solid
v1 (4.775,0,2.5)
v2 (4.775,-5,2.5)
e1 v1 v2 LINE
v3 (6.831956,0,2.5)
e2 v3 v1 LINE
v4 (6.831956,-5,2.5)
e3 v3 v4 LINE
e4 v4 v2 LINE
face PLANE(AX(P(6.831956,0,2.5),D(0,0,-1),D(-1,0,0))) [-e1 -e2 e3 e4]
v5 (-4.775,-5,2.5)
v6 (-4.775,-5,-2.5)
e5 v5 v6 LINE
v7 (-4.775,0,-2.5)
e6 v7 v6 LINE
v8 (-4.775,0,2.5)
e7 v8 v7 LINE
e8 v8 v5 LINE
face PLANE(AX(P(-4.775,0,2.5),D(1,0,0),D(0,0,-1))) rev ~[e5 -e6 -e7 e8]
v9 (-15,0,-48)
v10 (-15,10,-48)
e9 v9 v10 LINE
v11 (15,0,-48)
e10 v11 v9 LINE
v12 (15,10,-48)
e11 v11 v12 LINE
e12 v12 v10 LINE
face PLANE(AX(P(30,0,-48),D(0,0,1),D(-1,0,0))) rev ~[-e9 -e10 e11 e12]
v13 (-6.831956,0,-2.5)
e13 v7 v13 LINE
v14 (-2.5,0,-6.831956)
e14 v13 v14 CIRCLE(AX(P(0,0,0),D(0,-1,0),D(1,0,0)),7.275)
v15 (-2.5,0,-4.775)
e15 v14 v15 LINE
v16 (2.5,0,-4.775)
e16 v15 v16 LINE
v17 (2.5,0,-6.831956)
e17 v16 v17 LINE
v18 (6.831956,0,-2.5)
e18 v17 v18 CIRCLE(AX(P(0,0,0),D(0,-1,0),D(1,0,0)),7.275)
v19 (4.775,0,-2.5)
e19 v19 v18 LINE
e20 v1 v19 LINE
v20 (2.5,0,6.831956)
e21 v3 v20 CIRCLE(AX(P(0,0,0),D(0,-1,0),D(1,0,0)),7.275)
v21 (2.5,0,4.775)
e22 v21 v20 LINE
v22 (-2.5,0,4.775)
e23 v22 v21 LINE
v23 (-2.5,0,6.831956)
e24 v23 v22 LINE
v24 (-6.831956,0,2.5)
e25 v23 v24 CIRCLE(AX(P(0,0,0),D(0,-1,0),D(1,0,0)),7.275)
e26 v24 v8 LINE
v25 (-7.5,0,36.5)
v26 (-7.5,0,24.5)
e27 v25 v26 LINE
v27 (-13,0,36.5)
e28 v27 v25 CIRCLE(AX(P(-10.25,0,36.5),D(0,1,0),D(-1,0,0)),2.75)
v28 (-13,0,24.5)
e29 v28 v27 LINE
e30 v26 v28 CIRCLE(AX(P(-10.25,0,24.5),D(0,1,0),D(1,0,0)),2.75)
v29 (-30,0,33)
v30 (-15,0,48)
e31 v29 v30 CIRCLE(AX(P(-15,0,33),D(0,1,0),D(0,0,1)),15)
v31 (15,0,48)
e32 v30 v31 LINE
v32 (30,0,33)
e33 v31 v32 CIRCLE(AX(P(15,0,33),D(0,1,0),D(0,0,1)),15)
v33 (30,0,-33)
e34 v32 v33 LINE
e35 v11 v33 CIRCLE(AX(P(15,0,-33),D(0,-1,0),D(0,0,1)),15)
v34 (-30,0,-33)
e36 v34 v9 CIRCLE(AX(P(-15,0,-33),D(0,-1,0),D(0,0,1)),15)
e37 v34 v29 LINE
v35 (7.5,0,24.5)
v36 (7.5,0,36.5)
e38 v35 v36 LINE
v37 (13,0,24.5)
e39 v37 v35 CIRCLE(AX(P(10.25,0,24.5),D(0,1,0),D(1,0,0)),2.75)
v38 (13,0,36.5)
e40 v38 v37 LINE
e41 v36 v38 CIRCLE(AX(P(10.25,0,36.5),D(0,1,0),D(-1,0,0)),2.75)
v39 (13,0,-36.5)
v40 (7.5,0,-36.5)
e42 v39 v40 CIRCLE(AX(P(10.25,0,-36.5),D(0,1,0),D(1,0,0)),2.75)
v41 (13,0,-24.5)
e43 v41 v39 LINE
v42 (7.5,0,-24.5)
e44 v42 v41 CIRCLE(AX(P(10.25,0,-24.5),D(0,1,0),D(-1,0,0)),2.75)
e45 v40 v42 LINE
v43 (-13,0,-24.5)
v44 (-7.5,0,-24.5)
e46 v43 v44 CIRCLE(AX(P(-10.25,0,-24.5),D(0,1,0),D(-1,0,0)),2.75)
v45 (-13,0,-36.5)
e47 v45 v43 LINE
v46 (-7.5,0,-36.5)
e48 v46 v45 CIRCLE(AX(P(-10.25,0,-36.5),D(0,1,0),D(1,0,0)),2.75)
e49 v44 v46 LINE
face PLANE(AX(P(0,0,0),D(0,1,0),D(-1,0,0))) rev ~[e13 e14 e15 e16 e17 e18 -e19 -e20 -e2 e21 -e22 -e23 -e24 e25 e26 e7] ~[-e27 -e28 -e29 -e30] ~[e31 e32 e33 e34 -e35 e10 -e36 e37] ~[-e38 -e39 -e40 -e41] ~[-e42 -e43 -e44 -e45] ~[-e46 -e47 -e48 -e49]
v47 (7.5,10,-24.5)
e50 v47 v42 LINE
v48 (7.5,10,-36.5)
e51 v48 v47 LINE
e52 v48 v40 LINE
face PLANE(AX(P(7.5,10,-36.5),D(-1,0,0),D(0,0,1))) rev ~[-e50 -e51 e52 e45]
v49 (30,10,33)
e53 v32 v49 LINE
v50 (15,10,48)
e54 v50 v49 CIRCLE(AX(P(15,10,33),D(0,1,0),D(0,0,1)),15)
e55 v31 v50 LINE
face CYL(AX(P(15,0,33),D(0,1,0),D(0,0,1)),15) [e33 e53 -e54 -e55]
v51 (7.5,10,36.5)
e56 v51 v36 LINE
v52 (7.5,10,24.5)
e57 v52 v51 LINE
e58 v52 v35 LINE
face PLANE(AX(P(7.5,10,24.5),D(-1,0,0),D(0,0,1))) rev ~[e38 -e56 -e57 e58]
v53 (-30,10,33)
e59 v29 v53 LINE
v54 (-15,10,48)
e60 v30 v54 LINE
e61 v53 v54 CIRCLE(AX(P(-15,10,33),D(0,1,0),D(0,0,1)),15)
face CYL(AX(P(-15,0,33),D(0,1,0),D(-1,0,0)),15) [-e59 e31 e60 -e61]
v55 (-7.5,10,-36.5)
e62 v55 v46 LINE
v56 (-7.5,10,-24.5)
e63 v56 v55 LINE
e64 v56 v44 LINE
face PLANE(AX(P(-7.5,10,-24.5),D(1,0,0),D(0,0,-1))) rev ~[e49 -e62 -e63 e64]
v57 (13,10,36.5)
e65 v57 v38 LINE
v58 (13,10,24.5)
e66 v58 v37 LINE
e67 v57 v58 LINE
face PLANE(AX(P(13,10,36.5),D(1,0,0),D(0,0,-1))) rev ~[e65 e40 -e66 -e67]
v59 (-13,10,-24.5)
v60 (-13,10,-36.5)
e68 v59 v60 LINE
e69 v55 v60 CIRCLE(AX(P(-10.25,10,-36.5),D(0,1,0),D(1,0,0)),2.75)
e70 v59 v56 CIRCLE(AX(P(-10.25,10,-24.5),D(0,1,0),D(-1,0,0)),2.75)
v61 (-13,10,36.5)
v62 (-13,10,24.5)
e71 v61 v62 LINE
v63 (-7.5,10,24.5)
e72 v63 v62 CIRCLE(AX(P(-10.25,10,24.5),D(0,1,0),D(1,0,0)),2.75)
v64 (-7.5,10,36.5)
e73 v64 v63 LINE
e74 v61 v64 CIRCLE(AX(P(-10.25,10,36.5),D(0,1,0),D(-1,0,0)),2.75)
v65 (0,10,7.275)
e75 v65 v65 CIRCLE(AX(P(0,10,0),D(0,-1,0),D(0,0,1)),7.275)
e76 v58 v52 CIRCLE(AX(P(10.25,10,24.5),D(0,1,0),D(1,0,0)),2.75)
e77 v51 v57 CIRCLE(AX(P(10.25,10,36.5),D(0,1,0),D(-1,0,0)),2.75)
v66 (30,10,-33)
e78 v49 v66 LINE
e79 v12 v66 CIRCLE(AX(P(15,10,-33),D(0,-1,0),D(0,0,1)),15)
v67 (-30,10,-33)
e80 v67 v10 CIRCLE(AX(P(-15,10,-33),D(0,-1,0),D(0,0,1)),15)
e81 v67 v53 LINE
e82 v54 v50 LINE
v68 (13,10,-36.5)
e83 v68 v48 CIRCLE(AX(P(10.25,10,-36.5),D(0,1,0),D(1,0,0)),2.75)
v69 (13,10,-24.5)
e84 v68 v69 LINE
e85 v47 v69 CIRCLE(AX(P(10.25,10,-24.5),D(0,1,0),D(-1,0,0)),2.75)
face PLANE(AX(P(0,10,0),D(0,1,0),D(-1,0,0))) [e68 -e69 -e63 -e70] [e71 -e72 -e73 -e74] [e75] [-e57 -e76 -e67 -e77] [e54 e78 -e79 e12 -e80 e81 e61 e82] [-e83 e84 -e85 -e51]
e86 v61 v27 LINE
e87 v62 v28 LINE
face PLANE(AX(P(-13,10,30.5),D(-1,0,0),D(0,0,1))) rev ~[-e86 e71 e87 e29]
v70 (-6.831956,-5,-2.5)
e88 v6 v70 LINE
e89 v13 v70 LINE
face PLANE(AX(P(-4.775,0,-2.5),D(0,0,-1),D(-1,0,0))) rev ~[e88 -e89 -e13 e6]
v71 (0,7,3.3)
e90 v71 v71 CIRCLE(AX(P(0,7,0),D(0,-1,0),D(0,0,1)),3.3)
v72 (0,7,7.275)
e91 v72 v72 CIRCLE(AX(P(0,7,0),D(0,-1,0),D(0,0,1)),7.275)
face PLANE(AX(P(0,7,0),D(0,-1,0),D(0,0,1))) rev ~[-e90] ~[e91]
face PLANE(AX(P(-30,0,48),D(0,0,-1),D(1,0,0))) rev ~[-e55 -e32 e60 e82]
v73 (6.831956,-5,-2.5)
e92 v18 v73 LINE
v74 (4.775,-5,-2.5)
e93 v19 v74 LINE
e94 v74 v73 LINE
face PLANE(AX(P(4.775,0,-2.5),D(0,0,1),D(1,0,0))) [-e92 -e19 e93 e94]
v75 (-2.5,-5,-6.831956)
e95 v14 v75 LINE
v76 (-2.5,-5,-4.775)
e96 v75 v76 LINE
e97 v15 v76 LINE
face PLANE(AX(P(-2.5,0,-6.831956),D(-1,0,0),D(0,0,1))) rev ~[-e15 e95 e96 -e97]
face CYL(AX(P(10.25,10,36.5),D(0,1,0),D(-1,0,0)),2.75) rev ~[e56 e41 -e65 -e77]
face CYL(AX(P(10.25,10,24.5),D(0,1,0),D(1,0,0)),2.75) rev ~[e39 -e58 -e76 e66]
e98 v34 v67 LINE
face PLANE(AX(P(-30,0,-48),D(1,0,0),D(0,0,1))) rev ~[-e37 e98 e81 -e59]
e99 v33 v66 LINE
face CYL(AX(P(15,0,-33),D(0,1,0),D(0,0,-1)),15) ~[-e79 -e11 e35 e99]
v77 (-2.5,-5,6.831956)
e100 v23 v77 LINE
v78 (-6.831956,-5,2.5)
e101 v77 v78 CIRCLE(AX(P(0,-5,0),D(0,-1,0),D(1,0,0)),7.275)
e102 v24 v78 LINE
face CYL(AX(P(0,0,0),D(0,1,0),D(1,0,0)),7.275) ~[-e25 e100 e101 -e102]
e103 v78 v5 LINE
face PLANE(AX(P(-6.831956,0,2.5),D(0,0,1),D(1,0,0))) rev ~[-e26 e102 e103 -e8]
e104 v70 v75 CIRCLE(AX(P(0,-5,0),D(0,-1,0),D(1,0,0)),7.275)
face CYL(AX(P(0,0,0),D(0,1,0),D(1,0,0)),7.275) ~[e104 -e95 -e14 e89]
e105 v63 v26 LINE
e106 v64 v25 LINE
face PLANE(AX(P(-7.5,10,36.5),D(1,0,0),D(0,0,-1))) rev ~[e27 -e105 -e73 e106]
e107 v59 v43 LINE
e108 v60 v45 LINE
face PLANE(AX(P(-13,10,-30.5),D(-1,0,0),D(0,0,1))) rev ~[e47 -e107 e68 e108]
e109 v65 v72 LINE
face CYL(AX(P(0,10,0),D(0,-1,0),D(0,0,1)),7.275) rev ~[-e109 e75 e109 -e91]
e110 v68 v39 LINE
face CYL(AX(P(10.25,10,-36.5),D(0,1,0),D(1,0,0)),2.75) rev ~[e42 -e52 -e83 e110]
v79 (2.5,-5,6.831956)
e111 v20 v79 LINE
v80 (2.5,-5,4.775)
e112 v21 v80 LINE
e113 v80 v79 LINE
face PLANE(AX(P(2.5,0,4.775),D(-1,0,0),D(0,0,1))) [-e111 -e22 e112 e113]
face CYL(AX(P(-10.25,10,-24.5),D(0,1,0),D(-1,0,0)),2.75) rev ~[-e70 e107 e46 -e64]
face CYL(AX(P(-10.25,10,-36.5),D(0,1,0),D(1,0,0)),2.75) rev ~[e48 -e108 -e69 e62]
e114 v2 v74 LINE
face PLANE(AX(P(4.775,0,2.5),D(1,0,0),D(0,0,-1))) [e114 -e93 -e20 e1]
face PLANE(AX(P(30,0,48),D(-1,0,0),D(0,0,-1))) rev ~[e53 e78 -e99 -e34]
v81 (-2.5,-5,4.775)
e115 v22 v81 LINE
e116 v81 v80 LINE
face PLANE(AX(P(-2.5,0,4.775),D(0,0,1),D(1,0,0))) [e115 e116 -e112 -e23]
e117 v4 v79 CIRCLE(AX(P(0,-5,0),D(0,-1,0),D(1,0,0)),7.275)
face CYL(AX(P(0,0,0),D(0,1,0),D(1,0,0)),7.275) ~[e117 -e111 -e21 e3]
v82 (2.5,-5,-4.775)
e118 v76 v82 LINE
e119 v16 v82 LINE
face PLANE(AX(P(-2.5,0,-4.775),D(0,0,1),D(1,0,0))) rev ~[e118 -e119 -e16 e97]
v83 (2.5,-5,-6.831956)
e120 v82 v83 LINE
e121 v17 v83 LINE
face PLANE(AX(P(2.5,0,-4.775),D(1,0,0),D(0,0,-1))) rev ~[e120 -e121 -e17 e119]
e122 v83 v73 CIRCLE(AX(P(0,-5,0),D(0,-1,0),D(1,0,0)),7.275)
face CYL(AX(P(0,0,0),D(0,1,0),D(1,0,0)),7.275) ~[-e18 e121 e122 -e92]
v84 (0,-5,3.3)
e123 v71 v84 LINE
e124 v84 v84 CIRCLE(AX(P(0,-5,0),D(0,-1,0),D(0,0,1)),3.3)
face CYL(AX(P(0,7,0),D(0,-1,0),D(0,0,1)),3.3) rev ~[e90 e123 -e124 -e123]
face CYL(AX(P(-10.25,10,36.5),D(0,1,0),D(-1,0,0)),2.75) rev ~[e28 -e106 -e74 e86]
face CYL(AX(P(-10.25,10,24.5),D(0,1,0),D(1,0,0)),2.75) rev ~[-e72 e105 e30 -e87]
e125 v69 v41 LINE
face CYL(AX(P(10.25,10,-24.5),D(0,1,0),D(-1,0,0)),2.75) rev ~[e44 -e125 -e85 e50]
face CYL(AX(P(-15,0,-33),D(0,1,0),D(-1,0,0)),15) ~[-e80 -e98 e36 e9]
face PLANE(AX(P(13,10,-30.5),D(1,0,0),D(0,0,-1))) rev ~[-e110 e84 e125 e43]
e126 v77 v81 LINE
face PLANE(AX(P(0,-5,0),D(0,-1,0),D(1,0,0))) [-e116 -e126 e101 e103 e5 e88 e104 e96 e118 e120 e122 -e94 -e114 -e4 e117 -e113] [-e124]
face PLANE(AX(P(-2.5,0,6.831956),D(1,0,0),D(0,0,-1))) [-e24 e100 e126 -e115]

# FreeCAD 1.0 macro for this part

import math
import FreeCAD as App
import Part
import Sketcher
from FreeCAD import Vector


def edges_at(feature, points):
    """Names of the edges that pass closest to the given points."""
    edges = feature.Shape.Edges
    near = lambda p: min(range(len(edges)), key=lambda i: edges[i].distToShape(Part.Vertex(*p))[0])
    return sorted({f"Edge{near(p) + 1}" for p in points})

doc = App.newDocument("Part")
params = doc.addObject("Spreadsheet::Sheet", "Params")
for row, (alias, value) in enumerate([
    ("sketch1_width", "60 mm"),
    ("sketch1_height", "96 mm"),
    ("pad1_length", "10 mm"),
    ("sketch2_radius", "2.75 mm"),
    ("sketch2_height", "12 mm"),
    ("sketch3_width", "5 mm"),
    ("pad2_length", "5 mm"),
    ("sketch4_diameter", "6.6 mm"),
    ("hole_diameter", "6.6 mm"),
    ("hole_cbore_diameter", "14.55 mm"),
    ("hole_cbore_depth", "3 mm"),
    ("fillet_radius", "15 mm"),
], start=1):
    params.set(f"A{row}", alias)
    params.set(f"B{row}", "=" + value)
    params.setAlias(f"B{row}", alias)

body = doc.addObject("PartDesign::Body", "Body")

# Sketch on XZ plane
sketch1 = doc.addObject("Sketcher::SketchObject", "Sketch")
body.addObject(sketch1)
sketch1.AttachmentSupport = (doc.XZ_Plane, [""])
sketch1.MapMode = "FlatFace"
sketch1.addGeometry([
    Part.LineSegment(Vector(-30, -48, 0), Vector(-30, 48, 0)),
    Part.LineSegment(Vector(-30, 48, 0), Vector(30, 48, 0)),
    Part.LineSegment(Vector(30, 48, 0), Vector(30, -48, 0)),
    Part.LineSegment(Vector(30, -48, 0), Vector(-30, -48, 0)),
], False)
sketch1.addConstraint([
    Sketcher.Constraint("Coincident", 0, 2, 1, 1),
    Sketcher.Constraint("Coincident", 1, 2, 2, 1),
    Sketcher.Constraint("Coincident", 2, 2, 3, 1),
    Sketcher.Constraint("Coincident", 3, 2, 0, 1),
    Sketcher.Constraint("Vertical", 0),
    Sketcher.Constraint("Horizontal", 1),
    Sketcher.Constraint("Vertical", 2),
    Sketcher.Constraint("Horizontal", 3),
    Sketcher.Constraint("Symmetric", 0, 2, 2, 2, -1, 1),
    Sketcher.Constraint("DistanceX", 1, 1, 1, 2, 60.0),
    Sketcher.Constraint("DistanceY", 0, 1, 0, 2, 96.0),
])
sketch1.setExpression("Constraints[9]", "Params.sketch1_width")
sketch1.setExpression("Constraints[10]", "Params.sketch1_height")
pad1 = doc.addObject("PartDesign::Pad", "Pad")
body.addObject(pad1)
pad1.Profile = sketch1
pad1.setExpression("Length", "Params.pad1_length")
pad1.Reversed = True

# Sketch on XZ plane
sketch2 = doc.addObject("Sketcher::SketchObject", "Sketch001")
body.addObject(sketch2)
sketch2.AttachmentSupport = (doc.XZ_Plane, [""])
sketch2.MapMode = "FlatFace"
sketch2.AttachmentOffset = App.Placement(Vector(0, 0, -10), App.Rotation())
sketch2.addGeometry([
    Part.ArcOfCircle(Part.Circle(Vector(10.25, 36.5, 0), Vector(0, 0, 1), 2.75), math.radians(0), math.radians(180)),  # 0
    Part.LineSegment(Vector(13, 36.5, 0), Vector(13, 24.5, 0)),  # 1
    Part.ArcOfCircle(Part.Circle(Vector(10.25, 24.5, 0), Vector(0, 0, 1), 2.75), math.radians(180), math.radians(360)),  # 2
    Part.LineSegment(Vector(7.5, 24.5, 0), Vector(7.5, 36.5, 0)),  # 3
    Part.LineSegment(Vector(-13, 24.5, 0), Vector(-13, 36.5, 0)),  # 4
    Part.ArcOfCircle(Part.Circle(Vector(-10.25, 36.5, 0), Vector(0, 0, 1), 2.75), math.radians(0), math.radians(180)),  # 5
    Part.LineSegment(Vector(-7.5, 36.5, 0), Vector(-7.5, 24.5, 0)),  # 6
    Part.ArcOfCircle(Part.Circle(Vector(-10.25, 24.5, 0), Vector(0, 0, 1), 2.75), math.radians(180), math.radians(360)),  # 7
    Part.LineSegment(Vector(7.5, -36.5, 0), Vector(7.5, -24.5, 0)),  # 8
    Part.ArcOfCircle(Part.Circle(Vector(10.25, -24.5, 0), Vector(0, 0, 1), 2.75), math.radians(0), math.radians(180)),  # 9
    Part.LineSegment(Vector(13, -24.5, 0), Vector(13, -36.5, 0)),  # 10
    Part.ArcOfCircle(Part.Circle(Vector(10.25, -36.5, 0), Vector(0, 0, 1), 2.75), math.radians(180), math.radians(360)),  # 11
    Part.LineSegment(Vector(-13, -36.5, 0), Vector(-13, -24.5, 0)),  # 12
    Part.ArcOfCircle(Part.Circle(Vector(-10.25, -24.5, 0), Vector(0, 0, 1), 2.75), math.radians(0), math.radians(180)),  # 13
    Part.LineSegment(Vector(-7.5, -24.5, 0), Vector(-7.5, -36.5, 0)),  # 14
    Part.ArcOfCircle(Part.Circle(Vector(-10.25, -36.5, 0), Vector(0, 0, 1), 2.75), math.radians(180), math.radians(360)),  # 15
], False)
sketch2.addConstraint([
    Sketcher.Constraint("Tangent", 0, 1, 1, 1),
    Sketcher.Constraint("Tangent", 1, 2, 2, 2),
    Sketcher.Constraint("Tangent", 2, 1, 3, 1),
    Sketcher.Constraint("Tangent", 3, 2, 0, 2),
    Sketcher.Constraint("Tangent", 4, 2, 5, 2),
    Sketcher.Constraint("Tangent", 5, 1, 6, 1),
    Sketcher.Constraint("Tangent", 6, 2, 7, 2),
    Sketcher.Constraint("Tangent", 7, 1, 4, 1),
    Sketcher.Constraint("Tangent", 8, 2, 9, 2),
    Sketcher.Constraint("Tangent", 9, 1, 10, 1),
    Sketcher.Constraint("Tangent", 10, 2, 11, 2),
    Sketcher.Constraint("Tangent", 11, 1, 8, 1),
    Sketcher.Constraint("Tangent", 12, 2, 13, 2),
    Sketcher.Constraint("Tangent", 13, 1, 14, 1),
    Sketcher.Constraint("Tangent", 14, 2, 15, 2),
    Sketcher.Constraint("Tangent", 15, 1, 12, 1),
    Sketcher.Constraint("Vertical", 1),
    Sketcher.Constraint("Vertical", 3),
    Sketcher.Constraint("Vertical", 4),
    Sketcher.Constraint("Vertical", 6),
    Sketcher.Constraint("Vertical", 8),
    Sketcher.Constraint("Vertical", 10),
    Sketcher.Constraint("Vertical", 12),
    Sketcher.Constraint("Vertical", 14),
    Sketcher.Constraint("Equal", 2, 5),
    Sketcher.Constraint("Equal", 7, 9),
    Sketcher.Constraint("Equal", 11, 13),
    Sketcher.Constraint("Symmetric", 7, 3, 9, 3, -1, 1),
    Sketcher.Constraint("Symmetric", 2, 3, 13, 3, -1, 1),
    Sketcher.Constraint("Symmetric", 0, 3, 5, 3, -2),
    Sketcher.Constraint("Horizontal", 2, 3, 7, 3),
    Sketcher.Constraint("Horizontal", 11, 3, 15, 3),
    Sketcher.Constraint("Equal", 6, 8),
    Sketcher.Constraint("Radius", 0, 2.75),
    Sketcher.Constraint("DistanceY", 9, 3, 0, 3, 61.0),
    Sketcher.Constraint("DistanceY", 1, 2, 1, 1, 12.0),
    Sketcher.Constraint("DistanceX", -1, 1, 0, 1, 13.0),
])
sketch2.setExpression("Constraints[33]", "Params.sketch2_radius")
sketch2.setExpression("Constraints[35]", "Params.sketch2_height")
pocket1 = doc.addObject("PartDesign::Pocket", "Pocket")
body.addObject(pocket1)
pocket1.Profile = sketch2
pocket1.Type = "ThroughAll"
pocket1.Reversed = True

# Sketch on XZ plane
sketch3 = doc.addObject("Sketcher::SketchObject", "Sketch002")
body.addObject(sketch3)
sketch3.AttachmentSupport = (doc.XZ_Plane, [""])
sketch3.MapMode = "FlatFace"
sketch3.addGeometry([
    Part.LineSegment(Vector(4.775, 2.5, 0), Vector(6.831956, 2.5, 0)),  # 0
    Part.ArcOfCircle(Part.Circle(Vector(0, 0, 0), Vector(0, 0, 1), 7.275), math.radians(20.098958), math.radians(69.901042)),  # 1
    Part.LineSegment(Vector(2.5, 6.831956, 0), Vector(2.5, 4.775, 0)),  # 2
    Part.LineSegment(Vector(2.5, 4.775, 0), Vector(-2.5, 4.775, 0)),  # 3
    Part.LineSegment(Vector(-2.5, 4.775, 0), Vector(-2.5, 6.831956, 0)),  # 4
    Part.ArcOfCircle(Part.Circle(Vector(0, 0, 0), Vector(0, 0, 1), 7.275), math.radians(110.098958), math.radians(159.901042)),  # 5
    Part.LineSegment(Vector(-6.831956, 2.5, 0), Vector(-4.775, 2.5, 0)),  # 6
    Part.LineSegment(Vector(-4.775, 2.5, 0), Vector(-4.775, -2.5, 0)),  # 7
    Part.LineSegment(Vector(-4.775, -2.5, 0), Vector(-6.831956, -2.5, 0)),  # 8
    Part.ArcOfCircle(Part.Circle(Vector(0, 0, 0), Vector(0, 0, 1), 7.275), math.radians(-159.901042), math.radians(-110.098958)),  # 9
    Part.LineSegment(Vector(-2.5, -6.831956, 0), Vector(-2.5, -4.775, 0)),  # 10
    Part.LineSegment(Vector(-2.5, -4.775, 0), Vector(2.5, -4.775, 0)),  # 11
    Part.LineSegment(Vector(2.5, -4.775, 0), Vector(2.5, -6.831956, 0)),  # 12
    Part.ArcOfCircle(Part.Circle(Vector(0, 0, 0), Vector(0, 0, 1), 7.275), math.radians(-69.901042), math.radians(-20.098958)),  # 13
    Part.LineSegment(Vector(6.831956, -2.5, 0), Vector(4.775, -2.5, 0)),  # 14
    Part.LineSegment(Vector(4.775, -2.5, 0), Vector(4.775, 2.5, 0)),  # 15
], False)
sketch3.addConstraint([
    Sketcher.Constraint("Coincident", 0, 2, 1, 1),
    Sketcher.Constraint("Coincident", 1, 2, 2, 1),
    Sketcher.Constraint("Coincident", 2, 2, 3, 1),
    Sketcher.Constraint("Coincident", 3, 2, 4, 1),
    Sketcher.Constraint("Coincident", 4, 2, 5, 1),
    Sketcher.Constraint("Coincident", 5, 2, 6, 1),
    Sketcher.Constraint("Coincident", 6, 2, 7, 1),
    Sketcher.Constraint("Coincident", 7, 2, 8, 1),
    Sketcher.Constraint("Coincident", 8, 2, 9, 1),
    Sketcher.Constraint("Coincident", 9, 2, 10, 1),
    Sketcher.Constraint("Coincident", 10, 2, 11, 1),
    Sketcher.Constraint("Coincident", 11, 2, 12, 1),
    Sketcher.Constraint("Coincident", 12, 2, 13, 1),
    Sketcher.Constraint("Coincident", 13, 2, 14, 1),
    Sketcher.Constraint("Coincident", 14, 2, 15, 1),
    Sketcher.Constraint("Coincident", 15, 2, 0, 1),
    Sketcher.Constraint("Horizontal", 0),
    Sketcher.Constraint("Vertical", 2),
    Sketcher.Constraint("Horizontal", 3),
    Sketcher.Constraint("Vertical", 4),
    Sketcher.Constraint("Horizontal", 6),
    Sketcher.Constraint("Vertical", 7),
    Sketcher.Constraint("Horizontal", 8),
    Sketcher.Constraint("Vertical", 10),
    Sketcher.Constraint("Horizontal", 11),
    Sketcher.Constraint("Vertical", 12),
    Sketcher.Constraint("Horizontal", 14),
    Sketcher.Constraint("Vertical", 15),
    Sketcher.Constraint("Coincident", 1, 3, -1, 1),
    Sketcher.Constraint("Coincident", 5, 3, -1, 1),
    Sketcher.Constraint("Coincident", 9, 3, -1, 1),
    Sketcher.Constraint("Coincident", 13, 3, -1, 1),
    Sketcher.Constraint("Equal", 1, 5),
    Sketcher.Constraint("Equal", 5, 9),
    Sketcher.Constraint("Equal", 9, 13),
    Sketcher.Constraint("Symmetric", 2, 2, 10, 2, -1, 1),
    Sketcher.Constraint("Symmetric", 6, 2, 14, 2, -1, 1),
    Sketcher.Constraint("Horizontal", 1, 2, 4, 2),
    Sketcher.Constraint("Horizontal", 0, 2, 5, 2),
    Sketcher.Constraint("Horizontal", 9, 2, 12, 2),
    Sketcher.Constraint("Horizontal", 8, 2, 13, 2),
    Sketcher.Constraint("Equal", 14, 2),
    Sketcher.Constraint("Equal", 11, 7),
    Sketcher.Constraint("DistanceX", 3, 2, 3, 1, 5.0),
    Sketcher.Constraint("Radius", 1, 7.275),
    Sketcher.Constraint("DistanceX", 0, 1, 0, 2, 2.057),
])
sketch3.setExpression("Constraints[43]", "Params.sketch3_width")
pad2 = doc.addObject("PartDesign::Pad", "Pad001")
body.addObject(pad2)
pad2.Profile = sketch3
pad2.setExpression("Length", "Params.pad2_length")

# Sketch on XZ plane
sketch4 = doc.addObject("Sketcher::SketchObject", "Sketch003")
body.addObject(sketch4)
sketch4.AttachmentSupport = (doc.XZ_Plane, [""])
sketch4.MapMode = "FlatFace"
sketch4.AttachmentOffset = App.Placement(Vector(0, 0, -10), App.Rotation())
sketch4.addGeometry(Part.Circle(Vector(0, 0, 0), Vector(0, 0, 1), 3.3), False)
sketch4.addConstraint([
    Sketcher.Constraint("Coincident", 0, 3, -1, 1),
    Sketcher.Constraint("Diameter", 0, 6.6),
])
sketch4.setExpression("Constraints[1]", "Params.sketch4_diameter")
doc.recompute()
hole = doc.addObject("PartDesign::Hole", "Hole")
body.addObject(hole)
hole.Profile = sketch4
hole.ThreadType = "None"
hole.setExpression("Diameter", "Params.hole_diameter")
hole.DepthType = "ThroughAll"
hole.HoleCutType = "Counterbore"
hole.setExpression("HoleCutDiameter", "Params.hole_cbore_diameter")
hole.setExpression("HoleCutDepth", "Params.hole_cbore_depth")
hole.Reversed = True
doc.recompute()

fillet = doc.addObject("PartDesign::Fillet", "Fillet")
body.addObject(fillet)
fillet.Base = (hole, edges_at(hole, [
    (30, 5, 48),
    (-30, 5, 48),
    (30, 5, -48),
    (-30, 5, -48),
]))
fillet.setExpression("Radius", "Params.fillet_radius")

doc.recompute()
